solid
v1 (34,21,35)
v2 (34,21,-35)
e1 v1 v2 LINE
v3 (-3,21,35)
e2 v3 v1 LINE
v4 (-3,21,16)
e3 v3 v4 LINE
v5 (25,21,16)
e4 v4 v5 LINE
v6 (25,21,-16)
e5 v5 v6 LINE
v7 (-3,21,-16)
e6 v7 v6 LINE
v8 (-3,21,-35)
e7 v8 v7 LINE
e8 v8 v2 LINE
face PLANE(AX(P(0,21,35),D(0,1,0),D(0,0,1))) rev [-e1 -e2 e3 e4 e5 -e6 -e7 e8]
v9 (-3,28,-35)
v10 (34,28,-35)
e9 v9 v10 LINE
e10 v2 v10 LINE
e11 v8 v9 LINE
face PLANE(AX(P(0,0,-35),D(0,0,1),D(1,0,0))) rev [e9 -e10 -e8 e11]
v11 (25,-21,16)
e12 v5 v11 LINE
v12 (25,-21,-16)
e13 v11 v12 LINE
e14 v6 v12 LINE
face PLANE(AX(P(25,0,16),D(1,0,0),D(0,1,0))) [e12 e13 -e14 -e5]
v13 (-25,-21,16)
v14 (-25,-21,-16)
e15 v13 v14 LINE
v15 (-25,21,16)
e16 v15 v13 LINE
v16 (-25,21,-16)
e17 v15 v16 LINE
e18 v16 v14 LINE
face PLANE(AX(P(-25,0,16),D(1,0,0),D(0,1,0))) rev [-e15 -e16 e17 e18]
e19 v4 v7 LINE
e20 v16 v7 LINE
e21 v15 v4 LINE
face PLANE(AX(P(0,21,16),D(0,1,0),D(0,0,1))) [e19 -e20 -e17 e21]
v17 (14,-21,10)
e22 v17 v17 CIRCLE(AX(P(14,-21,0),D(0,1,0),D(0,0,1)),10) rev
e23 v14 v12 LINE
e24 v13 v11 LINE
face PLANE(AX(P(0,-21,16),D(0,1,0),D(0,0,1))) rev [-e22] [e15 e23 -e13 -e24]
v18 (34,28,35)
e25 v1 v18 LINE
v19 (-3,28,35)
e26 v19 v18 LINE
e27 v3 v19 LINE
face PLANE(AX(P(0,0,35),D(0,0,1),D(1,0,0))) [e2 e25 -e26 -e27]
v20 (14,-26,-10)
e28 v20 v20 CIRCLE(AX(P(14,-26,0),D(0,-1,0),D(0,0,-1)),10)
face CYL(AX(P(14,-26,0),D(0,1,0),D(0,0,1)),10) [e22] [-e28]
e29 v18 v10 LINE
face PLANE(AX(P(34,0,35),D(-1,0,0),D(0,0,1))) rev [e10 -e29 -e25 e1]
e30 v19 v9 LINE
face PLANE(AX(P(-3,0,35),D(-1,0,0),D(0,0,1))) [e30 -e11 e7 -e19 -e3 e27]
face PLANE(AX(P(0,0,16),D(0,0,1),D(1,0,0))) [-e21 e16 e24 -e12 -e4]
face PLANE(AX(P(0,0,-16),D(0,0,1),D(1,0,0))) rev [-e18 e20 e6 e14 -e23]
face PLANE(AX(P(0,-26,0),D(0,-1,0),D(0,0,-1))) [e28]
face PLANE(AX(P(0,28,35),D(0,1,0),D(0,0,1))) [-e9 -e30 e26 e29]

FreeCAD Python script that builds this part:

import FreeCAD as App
import Part
import Sketcher
from FreeCAD import Vector


def add_polygon(sketch, points):
    """Adds a closed chain of lines whose ends are joined by coincident constraints."""
    first, n = sketch.GeometryCount, len(points)
    for a, b in zip(points, points[1:] + points[:1]):
        sketch.addGeometry(Part.LineSegment(App.Vector(*a, 0), App.Vector(*b, 0)), False)
    for i in range(n):
        sketch.addConstraint(Sketcher.Constraint("Coincident", first + i, 2, first + (i + 1) % n, 1))

doc = App.newDocument("Part")
body = doc.addObject("PartDesign::Body", "Body")

# Sketch on XY plane
sketch1 = body.newObject("Sketcher::SketchObject", "Sketch")
sketch1.AttachmentSupport = (doc.getObject("XY_Plane"), [""])
sketch1.MapMode = "FlatFace"
add_polygon(sketch1, [(-25, 21), (-25, -21), (25, -21), (25, 21)])  # lines 0-3
sketch1.addConstraint(Sketcher.Constraint("Vertical", 0))
sketch1.addConstraint(Sketcher.Constraint("Horizontal", 1))
sketch1.addConstraint(Sketcher.Constraint("Vertical", 2))
sketch1.addConstraint(Sketcher.Constraint("Horizontal", 3))
sketch1.addConstraint(Sketcher.Constraint("Symmetric", 0, 2, 2, 2, -1, 1))
sketch1.addConstraint(Sketcher.Constraint("DistanceX", 1, 1, 1, 2, 50.0))
sketch1.addConstraint(Sketcher.Constraint("DistanceY", 0, 2, 0, 1, 42.0))
pad1 = body.newObject("PartDesign::Pad", "Pad")
pad1.Profile = sketch1
pad1.Length = 16

# Sketch on XY plane
sketch2 = body.newObject("Sketcher::SketchObject", "Sketch001")
sketch2.AttachmentSupport = (doc.getObject("XY_Plane"), [""])
sketch2.MapMode = "FlatFace"
add_polygon(sketch2, [(-25, 21), (-25, -21), (25, -21), (25, 21)])  # lines 0-3
sketch2.addConstraint(Sketcher.Constraint("Vertical", 0))
sketch2.addConstraint(Sketcher.Constraint("Horizontal", 1))
sketch2.addConstraint(Sketcher.Constraint("Vertical", 2))
sketch2.addConstraint(Sketcher.Constraint("Horizontal", 3))
sketch2.addConstraint(Sketcher.Constraint("Symmetric", 0, 2, 2, 2, -1, 1))
sketch2.addConstraint(Sketcher.Constraint("DistanceX", 1, 1, 1, 2, 50.0))
sketch2.addConstraint(Sketcher.Constraint("DistanceY", 0, 2, 0, 1, 42.0))
pad2 = body.newObject("PartDesign::Pad", "Pad001")
pad2.Profile = sketch2
pad2.Length = 16
pad2.Reversed = True

# Sketch on XY plane
sketch3 = body.newObject("Sketcher::SketchObject", "Sketch002")
sketch3.AttachmentSupport = (doc.getObject("XY_Plane"), [""])
sketch3.MapMode = "FlatFace"
add_polygon(sketch3, [(-3, 28), (-3, 21), (34, 21), (34, 28)])  # lines 0-3
sketch3.addConstraint(Sketcher.Constraint("Vertical", 0))
sketch3.addConstraint(Sketcher.Constraint("Horizontal", 1))
sketch3.addConstraint(Sketcher.Constraint("Vertical", 2))
sketch3.addConstraint(Sketcher.Constraint("Horizontal", 3))
sketch3.addConstraint(Sketcher.Constraint("DistanceX", 1, 1, 1, 2, 37.0))
sketch3.addConstraint(Sketcher.Constraint("DistanceY", 0, 2, 0, 1, 7.0))
sketch3.addConstraint(Sketcher.Constraint("DistanceX", 0, 2, -1, 1, 3.0))
sketch3.addConstraint(Sketcher.Constraint("DistanceY", -1, 1, 0, 2, 21.0))
pad3 = body.newObject("PartDesign::Pad", "Pad002")
pad3.Profile = sketch3
pad3.Length = 35

# Sketch on XY plane
sketch4 = body.newObject("Sketcher::SketchObject", "Sketch003")
sketch4.AttachmentSupport = (doc.getObject("XY_Plane"), [""])
sketch4.MapMode = "FlatFace"
add_polygon(sketch4, [(-3, 28), (-3, 21), (34, 21), (34, 28)])  # lines 0-3
sketch4.addConstraint(Sketcher.Constraint("Vertical", 0))
sketch4.addConstraint(Sketcher.Constraint("Horizontal", 1))
sketch4.addConstraint(Sketcher.Constraint("Vertical", 2))
sketch4.addConstraint(Sketcher.Constraint("Horizontal", 3))
sketch4.addConstraint(Sketcher.Constraint("DistanceX", 1, 1, 1, 2, 37.0))
sketch4.addConstraint(Sketcher.Constraint("DistanceY", 0, 2, 0, 1, 7.0))
sketch4.addConstraint(Sketcher.Constraint("DistanceX", 0, 2, -1, 1, 3.0))
sketch4.addConstraint(Sketcher.Constraint("DistanceY", -1, 1, 0, 2, 21.0))
pad4 = body.newObject("PartDesign::Pad", "Pad003")
pad4.Profile = sketch4
pad4.Length = 35
pad4.Reversed = True

# Sketch on XZ plane
sketch5 = body.newObject("Sketcher::SketchObject", "Sketch004")
sketch5.AttachmentSupport = (doc.getObject("XZ_Plane"), [""])
sketch5.MapMode = "FlatFace"
sketch5.AttachmentOffset = App.Placement(Vector(0, 0, 21), App.Rotation())
sketch5.addGeometry(Part.Circle(Vector(14, 0, 0), Vector(0, 0, 1), 10), False)
sketch5.addConstraint(Sketcher.Constraint("PointOnObject", 0, 3, -1))
sketch5.addConstraint(Sketcher.Constraint("Diameter", 0, 20.0))
sketch5.addConstraint(Sketcher.Constraint("DistanceX", -1, 1, 0, 3, 14.0))
pad5 = body.newObject("PartDesign::Pad", "Pad004")
pad5.Profile = sketch5
pad5.Length = 5

doc.recompute()
